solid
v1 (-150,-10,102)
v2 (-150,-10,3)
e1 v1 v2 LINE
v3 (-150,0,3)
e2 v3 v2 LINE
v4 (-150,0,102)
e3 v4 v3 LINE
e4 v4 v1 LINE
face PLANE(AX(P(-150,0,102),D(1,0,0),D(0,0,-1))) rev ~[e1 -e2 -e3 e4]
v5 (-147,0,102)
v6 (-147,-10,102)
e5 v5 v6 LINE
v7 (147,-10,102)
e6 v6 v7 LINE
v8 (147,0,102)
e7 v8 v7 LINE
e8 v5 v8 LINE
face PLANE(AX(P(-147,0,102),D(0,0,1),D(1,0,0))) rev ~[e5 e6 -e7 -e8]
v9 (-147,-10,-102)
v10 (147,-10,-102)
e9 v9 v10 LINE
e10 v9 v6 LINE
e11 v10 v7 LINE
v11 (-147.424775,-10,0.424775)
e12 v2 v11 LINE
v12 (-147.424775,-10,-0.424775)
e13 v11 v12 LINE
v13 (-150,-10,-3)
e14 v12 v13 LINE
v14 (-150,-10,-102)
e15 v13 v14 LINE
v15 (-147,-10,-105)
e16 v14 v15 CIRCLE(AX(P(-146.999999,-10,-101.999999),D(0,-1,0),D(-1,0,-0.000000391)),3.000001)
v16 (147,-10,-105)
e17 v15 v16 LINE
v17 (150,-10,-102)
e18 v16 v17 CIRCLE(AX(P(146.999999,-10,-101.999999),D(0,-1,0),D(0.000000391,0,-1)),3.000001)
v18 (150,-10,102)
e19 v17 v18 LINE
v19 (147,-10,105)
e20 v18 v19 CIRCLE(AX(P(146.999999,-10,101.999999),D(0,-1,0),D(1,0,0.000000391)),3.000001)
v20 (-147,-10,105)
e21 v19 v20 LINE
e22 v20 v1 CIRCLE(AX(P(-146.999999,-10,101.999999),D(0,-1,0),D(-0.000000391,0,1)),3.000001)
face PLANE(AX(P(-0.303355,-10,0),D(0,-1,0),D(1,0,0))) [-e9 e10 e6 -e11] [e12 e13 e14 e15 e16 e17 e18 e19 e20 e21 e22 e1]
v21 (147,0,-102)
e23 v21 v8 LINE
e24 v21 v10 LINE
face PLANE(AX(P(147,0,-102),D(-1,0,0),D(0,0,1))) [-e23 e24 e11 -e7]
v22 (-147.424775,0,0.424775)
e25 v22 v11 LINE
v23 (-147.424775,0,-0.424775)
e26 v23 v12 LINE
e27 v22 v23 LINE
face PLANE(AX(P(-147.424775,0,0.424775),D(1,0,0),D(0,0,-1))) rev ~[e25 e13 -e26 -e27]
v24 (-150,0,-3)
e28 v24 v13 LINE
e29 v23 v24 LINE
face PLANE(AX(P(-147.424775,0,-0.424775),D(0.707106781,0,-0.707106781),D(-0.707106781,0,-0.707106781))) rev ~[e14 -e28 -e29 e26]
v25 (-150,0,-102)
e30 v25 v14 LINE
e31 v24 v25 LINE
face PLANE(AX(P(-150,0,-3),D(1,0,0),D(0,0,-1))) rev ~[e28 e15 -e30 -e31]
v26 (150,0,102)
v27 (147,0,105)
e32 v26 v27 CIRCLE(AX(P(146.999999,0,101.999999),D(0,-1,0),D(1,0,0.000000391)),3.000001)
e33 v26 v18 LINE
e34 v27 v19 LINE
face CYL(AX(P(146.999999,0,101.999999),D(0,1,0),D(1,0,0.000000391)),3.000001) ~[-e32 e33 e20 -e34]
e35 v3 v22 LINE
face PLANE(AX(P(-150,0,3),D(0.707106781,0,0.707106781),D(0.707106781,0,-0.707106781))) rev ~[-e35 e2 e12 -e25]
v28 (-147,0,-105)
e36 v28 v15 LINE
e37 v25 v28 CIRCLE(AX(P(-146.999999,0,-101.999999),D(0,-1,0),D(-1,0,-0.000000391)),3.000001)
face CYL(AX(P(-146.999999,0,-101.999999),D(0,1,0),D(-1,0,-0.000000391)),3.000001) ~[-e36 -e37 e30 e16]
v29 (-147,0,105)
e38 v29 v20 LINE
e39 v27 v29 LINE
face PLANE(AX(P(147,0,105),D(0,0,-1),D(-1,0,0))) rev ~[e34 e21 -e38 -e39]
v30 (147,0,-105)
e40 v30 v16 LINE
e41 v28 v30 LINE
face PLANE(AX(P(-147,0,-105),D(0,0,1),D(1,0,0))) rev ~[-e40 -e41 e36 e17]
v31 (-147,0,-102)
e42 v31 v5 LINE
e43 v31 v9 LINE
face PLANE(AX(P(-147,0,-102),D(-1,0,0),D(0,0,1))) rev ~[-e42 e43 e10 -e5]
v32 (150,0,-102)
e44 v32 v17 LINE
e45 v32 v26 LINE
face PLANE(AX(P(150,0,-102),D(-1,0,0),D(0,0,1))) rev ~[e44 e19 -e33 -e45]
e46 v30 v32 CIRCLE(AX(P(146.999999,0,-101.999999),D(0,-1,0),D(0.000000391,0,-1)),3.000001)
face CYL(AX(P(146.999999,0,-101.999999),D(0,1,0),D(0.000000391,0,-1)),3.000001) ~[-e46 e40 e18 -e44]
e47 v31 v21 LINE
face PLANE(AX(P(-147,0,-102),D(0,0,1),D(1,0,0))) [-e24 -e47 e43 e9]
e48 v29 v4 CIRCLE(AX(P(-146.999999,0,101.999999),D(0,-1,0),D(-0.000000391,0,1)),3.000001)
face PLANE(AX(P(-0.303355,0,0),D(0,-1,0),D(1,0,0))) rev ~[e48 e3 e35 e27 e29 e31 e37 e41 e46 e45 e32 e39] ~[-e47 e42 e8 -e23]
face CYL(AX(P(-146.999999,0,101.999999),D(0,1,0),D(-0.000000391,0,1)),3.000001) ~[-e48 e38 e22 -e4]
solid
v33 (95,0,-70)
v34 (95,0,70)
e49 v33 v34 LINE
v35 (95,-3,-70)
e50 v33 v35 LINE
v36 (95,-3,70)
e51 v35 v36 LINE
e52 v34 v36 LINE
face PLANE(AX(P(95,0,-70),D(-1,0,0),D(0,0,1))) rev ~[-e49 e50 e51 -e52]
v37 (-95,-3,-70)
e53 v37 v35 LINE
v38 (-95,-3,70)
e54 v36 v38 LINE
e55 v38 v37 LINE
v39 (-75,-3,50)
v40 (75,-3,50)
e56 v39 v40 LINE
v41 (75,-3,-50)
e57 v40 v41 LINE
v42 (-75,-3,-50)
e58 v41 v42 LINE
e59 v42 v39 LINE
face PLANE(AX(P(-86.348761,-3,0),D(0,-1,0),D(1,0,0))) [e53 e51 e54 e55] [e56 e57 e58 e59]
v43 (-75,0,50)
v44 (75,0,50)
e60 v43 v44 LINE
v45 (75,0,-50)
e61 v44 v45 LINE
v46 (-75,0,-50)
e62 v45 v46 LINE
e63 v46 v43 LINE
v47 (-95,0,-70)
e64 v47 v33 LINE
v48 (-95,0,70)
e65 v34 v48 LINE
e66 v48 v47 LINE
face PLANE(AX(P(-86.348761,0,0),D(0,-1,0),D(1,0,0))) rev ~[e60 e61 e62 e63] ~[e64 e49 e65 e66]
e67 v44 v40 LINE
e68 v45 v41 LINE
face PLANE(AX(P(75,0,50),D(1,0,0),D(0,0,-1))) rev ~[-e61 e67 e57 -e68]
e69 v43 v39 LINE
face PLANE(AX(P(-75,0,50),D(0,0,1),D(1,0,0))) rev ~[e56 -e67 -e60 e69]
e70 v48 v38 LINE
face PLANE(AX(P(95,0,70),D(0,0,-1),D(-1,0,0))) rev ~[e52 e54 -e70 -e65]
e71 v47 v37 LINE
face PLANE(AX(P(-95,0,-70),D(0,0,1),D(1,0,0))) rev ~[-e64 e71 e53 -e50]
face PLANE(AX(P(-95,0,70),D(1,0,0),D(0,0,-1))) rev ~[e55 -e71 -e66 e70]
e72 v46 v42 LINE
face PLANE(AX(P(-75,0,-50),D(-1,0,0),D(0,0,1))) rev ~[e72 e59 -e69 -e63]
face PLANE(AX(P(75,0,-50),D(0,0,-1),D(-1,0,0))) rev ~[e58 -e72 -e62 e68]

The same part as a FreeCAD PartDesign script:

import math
import FreeCAD as App
import Part
import Sketcher

V = App.Vector

doc = App.newDocument("Part")
body = doc.addObject("PartDesign::Body", "Body")

# Sketch on XZ plane
sketch1 = body.newObject("Sketcher::SketchObject", "Sketch")
sketch1.AttachmentSupport = (doc.getObject("XZ_Plane"), [""])
sketch1.MapMode = "FlatFace"
sketch1.addGeometry([
    Part.LineSegment(V(147, 105, 0), V(-147, 105, 0)),  # 0
    Part.ArcOfCircle(Part.Circle(V(-146.999999, 101.999999, 0), V(0, 0, 1), 3.000001), math.radians(90.000022), math.radians(179.999978)),  # 1
    Part.LineSegment(V(-150, 102, 0), V(-150, 3, 0)),  # 2
    Part.LineSegment(V(-150, 3, 0), V(-147.424775, 0.424775, 0)),  # 3
    Part.LineSegment(V(-147.424775, 0.424775, 0), V(-147.424775, -0.424775, 0)),  # 4
    Part.LineSegment(V(-147.424775, -0.424775, 0), V(-150, -3, 0)),  # 5
    Part.LineSegment(V(-150, -3, 0), V(-150, -102, 0)),  # 6
    Part.ArcOfCircle(Part.Circle(V(-146.999999, -101.999999, 0), V(0, 0, 1), 3.000001), math.radians(-179.999978), math.radians(-90.000022)),  # 7
    Part.LineSegment(V(-147, -105, 0), V(147, -105, 0)),  # 8
    Part.ArcOfCircle(Part.Circle(V(146.999999, -101.999999, 0), V(0, 0, 1), 3.000001), math.radians(-89.999978), math.radians(-0.000022)),  # 9
    Part.LineSegment(V(150, -102, 0), V(150, 102, 0)),  # 10
    Part.ArcOfCircle(Part.Circle(V(146.999999, 101.999999, 0), V(0, 0, 1), 3.000001), math.radians(0.000022), math.radians(89.999978)),  # 11
    Part.LineSegment(V(147, -102, 0), V(-147, -102, 0)),  # 12
    Part.LineSegment(V(-147, -102, 0), V(-147, 102, 0)),  # 13
    Part.LineSegment(V(-147, 102, 0), V(147, 102, 0)),  # 14
    Part.LineSegment(V(147, 102, 0), V(147, -102, 0)),  # 15
], False)
sketch1.addConstraint([
    Sketcher.Constraint("Tangent", 0, 2, 1, 1),
    Sketcher.Constraint("Tangent", 1, 2, 2, 1),
    Sketcher.Constraint("Coincident", 2, 2, 3, 1),
    Sketcher.Constraint("Coincident", 3, 2, 4, 1),
    Sketcher.Constraint("Coincident", 4, 2, 5, 1),
    Sketcher.Constraint("Coincident", 5, 2, 6, 1),
    Sketcher.Constraint("Tangent", 6, 2, 7, 1),
    Sketcher.Constraint("Tangent", 7, 2, 8, 1),
    Sketcher.Constraint("Tangent", 8, 2, 9, 1),
    Sketcher.Constraint("Tangent", 9, 2, 10, 1),
    Sketcher.Constraint("Tangent", 10, 2, 11, 1),
    Sketcher.Constraint("Tangent", 11, 2, 0, 1),
    Sketcher.Constraint("Coincident", 12, 2, 13, 1),
    Sketcher.Constraint("Coincident", 13, 2, 14, 1),
    Sketcher.Constraint("Coincident", 14, 2, 15, 1),
    Sketcher.Constraint("Coincident", 15, 2, 12, 1),
    Sketcher.Constraint("Horizontal", 0),
    Sketcher.Constraint("Vertical", 2),
    Sketcher.Constraint("Vertical", 4),
    Sketcher.Constraint("Vertical", 6),
    Sketcher.Constraint("Horizontal", 8),
    Sketcher.Constraint("Vertical", 10),
    Sketcher.Constraint("Horizontal", 12),
    Sketcher.Constraint("Vertical", 13),
    Sketcher.Constraint("Horizontal", 14),
    Sketcher.Constraint("Vertical", 15),
    Sketcher.Constraint("Coincident", 12, 2, 7, 3),
    Sketcher.Constraint("Coincident", 13, 2, 1, 3),
    Sketcher.Constraint("Coincident", 14, 2, 11, 3),
    Sketcher.Constraint("Coincident", 15, 2, 9, 3),
    Sketcher.Constraint("Symmetric", 1, 3, 9, 3, -1, 1),
    Sketcher.Constraint("Perpendicular", 3, 5),
    Sketcher.Constraint("Equal", 2, 6),
    Sketcher.Constraint("Equal", 3, 5),
    Sketcher.Constraint("Radius", 1, 3.000001),
    Sketcher.Constraint("DistanceX", 0, 2, 0, 1, 294.0),
    Sketcher.Constraint("DistanceY", 2, 2, 2, 1, 99.0),
    Sketcher.Constraint("DistanceY", 10, 1, 10, 2, 204.0),
    Sketcher.Constraint("DistanceY", 4, 2, 4, 1, 0.84955),
])
pad1 = body.newObject("PartDesign::Pad", "Pad")
pad1.Profile = sketch1
pad1.Length = 10
body2 = doc.addObject("PartDesign::Body", "Body001")

# Sketch on XZ plane
sketch2 = body2.newObject("Sketcher::SketchObject", "Sketch001")
sketch2.AttachmentSupport = (doc.getObject("XZ_Plane001"), [""])
sketch2.MapMode = "FlatFace"
sketch2.addGeometry([
    Part.LineSegment(V(-95, 70, 0), V(-95, -70, 0)),  # 0
    Part.LineSegment(V(-95, -70, 0), V(95, -70, 0)),  # 1
    Part.LineSegment(V(95, -70, 0), V(95, 70, 0)),  # 2
    Part.LineSegment(V(95, 70, 0), V(-95, 70, 0)),  # 3
    Part.LineSegment(V(-75, -50, 0), V(-75, 50, 0)),  # 4
    Part.LineSegment(V(-75, 50, 0), V(75, 50, 0)),  # 5
    Part.LineSegment(V(75, 50, 0), V(75, -50, 0)),  # 6
    Part.LineSegment(V(75, -50, 0), V(-75, -50, 0)),  # 7
], False)
sketch2.addConstraint([
    Sketcher.Constraint("Coincident", 0, 2, 1, 1),
    Sketcher.Constraint("Coincident", 1, 2, 2, 1),
    Sketcher.Constraint("Coincident", 2, 2, 3, 1),
    Sketcher.Constraint("Coincident", 3, 2, 0, 1),
    Sketcher.Constraint("Coincident", 4, 2, 5, 1),
    Sketcher.Constraint("Coincident", 5, 2, 6, 1),
    Sketcher.Constraint("Coincident", 6, 2, 7, 1),
    Sketcher.Constraint("Coincident", 7, 2, 4, 1),
    Sketcher.Constraint("Vertical", 0),
    Sketcher.Constraint("Horizontal", 1),
    Sketcher.Constraint("Vertical", 2),
    Sketcher.Constraint("Horizontal", 3),
    Sketcher.Constraint("Vertical", 4),
    Sketcher.Constraint("Horizontal", 5),
    Sketcher.Constraint("Vertical", 6),
    Sketcher.Constraint("Horizontal", 7),
    Sketcher.Constraint("Symmetric", 0, 2, 2, 2, -1, 1),
    Sketcher.Constraint("Symmetric", 4, 2, 6, 2, -1, 1),
    Sketcher.Constraint("DistanceX", 1, 1, 1, 2, 190.0),
    Sketcher.Constraint("DistanceX", 5, 1, 5, 2, 150.0),
    Sketcher.Constraint("DistanceY", 0, 2, 0, 1, 140.0),
    Sketcher.Constraint("DistanceY", 4, 1, 4, 2, 100.0),
])
pad2 = body2.newObject("PartDesign::Pad", "Pad001")
pad2.Profile = sketch2
pad2.Length = 3

doc.recompute()
